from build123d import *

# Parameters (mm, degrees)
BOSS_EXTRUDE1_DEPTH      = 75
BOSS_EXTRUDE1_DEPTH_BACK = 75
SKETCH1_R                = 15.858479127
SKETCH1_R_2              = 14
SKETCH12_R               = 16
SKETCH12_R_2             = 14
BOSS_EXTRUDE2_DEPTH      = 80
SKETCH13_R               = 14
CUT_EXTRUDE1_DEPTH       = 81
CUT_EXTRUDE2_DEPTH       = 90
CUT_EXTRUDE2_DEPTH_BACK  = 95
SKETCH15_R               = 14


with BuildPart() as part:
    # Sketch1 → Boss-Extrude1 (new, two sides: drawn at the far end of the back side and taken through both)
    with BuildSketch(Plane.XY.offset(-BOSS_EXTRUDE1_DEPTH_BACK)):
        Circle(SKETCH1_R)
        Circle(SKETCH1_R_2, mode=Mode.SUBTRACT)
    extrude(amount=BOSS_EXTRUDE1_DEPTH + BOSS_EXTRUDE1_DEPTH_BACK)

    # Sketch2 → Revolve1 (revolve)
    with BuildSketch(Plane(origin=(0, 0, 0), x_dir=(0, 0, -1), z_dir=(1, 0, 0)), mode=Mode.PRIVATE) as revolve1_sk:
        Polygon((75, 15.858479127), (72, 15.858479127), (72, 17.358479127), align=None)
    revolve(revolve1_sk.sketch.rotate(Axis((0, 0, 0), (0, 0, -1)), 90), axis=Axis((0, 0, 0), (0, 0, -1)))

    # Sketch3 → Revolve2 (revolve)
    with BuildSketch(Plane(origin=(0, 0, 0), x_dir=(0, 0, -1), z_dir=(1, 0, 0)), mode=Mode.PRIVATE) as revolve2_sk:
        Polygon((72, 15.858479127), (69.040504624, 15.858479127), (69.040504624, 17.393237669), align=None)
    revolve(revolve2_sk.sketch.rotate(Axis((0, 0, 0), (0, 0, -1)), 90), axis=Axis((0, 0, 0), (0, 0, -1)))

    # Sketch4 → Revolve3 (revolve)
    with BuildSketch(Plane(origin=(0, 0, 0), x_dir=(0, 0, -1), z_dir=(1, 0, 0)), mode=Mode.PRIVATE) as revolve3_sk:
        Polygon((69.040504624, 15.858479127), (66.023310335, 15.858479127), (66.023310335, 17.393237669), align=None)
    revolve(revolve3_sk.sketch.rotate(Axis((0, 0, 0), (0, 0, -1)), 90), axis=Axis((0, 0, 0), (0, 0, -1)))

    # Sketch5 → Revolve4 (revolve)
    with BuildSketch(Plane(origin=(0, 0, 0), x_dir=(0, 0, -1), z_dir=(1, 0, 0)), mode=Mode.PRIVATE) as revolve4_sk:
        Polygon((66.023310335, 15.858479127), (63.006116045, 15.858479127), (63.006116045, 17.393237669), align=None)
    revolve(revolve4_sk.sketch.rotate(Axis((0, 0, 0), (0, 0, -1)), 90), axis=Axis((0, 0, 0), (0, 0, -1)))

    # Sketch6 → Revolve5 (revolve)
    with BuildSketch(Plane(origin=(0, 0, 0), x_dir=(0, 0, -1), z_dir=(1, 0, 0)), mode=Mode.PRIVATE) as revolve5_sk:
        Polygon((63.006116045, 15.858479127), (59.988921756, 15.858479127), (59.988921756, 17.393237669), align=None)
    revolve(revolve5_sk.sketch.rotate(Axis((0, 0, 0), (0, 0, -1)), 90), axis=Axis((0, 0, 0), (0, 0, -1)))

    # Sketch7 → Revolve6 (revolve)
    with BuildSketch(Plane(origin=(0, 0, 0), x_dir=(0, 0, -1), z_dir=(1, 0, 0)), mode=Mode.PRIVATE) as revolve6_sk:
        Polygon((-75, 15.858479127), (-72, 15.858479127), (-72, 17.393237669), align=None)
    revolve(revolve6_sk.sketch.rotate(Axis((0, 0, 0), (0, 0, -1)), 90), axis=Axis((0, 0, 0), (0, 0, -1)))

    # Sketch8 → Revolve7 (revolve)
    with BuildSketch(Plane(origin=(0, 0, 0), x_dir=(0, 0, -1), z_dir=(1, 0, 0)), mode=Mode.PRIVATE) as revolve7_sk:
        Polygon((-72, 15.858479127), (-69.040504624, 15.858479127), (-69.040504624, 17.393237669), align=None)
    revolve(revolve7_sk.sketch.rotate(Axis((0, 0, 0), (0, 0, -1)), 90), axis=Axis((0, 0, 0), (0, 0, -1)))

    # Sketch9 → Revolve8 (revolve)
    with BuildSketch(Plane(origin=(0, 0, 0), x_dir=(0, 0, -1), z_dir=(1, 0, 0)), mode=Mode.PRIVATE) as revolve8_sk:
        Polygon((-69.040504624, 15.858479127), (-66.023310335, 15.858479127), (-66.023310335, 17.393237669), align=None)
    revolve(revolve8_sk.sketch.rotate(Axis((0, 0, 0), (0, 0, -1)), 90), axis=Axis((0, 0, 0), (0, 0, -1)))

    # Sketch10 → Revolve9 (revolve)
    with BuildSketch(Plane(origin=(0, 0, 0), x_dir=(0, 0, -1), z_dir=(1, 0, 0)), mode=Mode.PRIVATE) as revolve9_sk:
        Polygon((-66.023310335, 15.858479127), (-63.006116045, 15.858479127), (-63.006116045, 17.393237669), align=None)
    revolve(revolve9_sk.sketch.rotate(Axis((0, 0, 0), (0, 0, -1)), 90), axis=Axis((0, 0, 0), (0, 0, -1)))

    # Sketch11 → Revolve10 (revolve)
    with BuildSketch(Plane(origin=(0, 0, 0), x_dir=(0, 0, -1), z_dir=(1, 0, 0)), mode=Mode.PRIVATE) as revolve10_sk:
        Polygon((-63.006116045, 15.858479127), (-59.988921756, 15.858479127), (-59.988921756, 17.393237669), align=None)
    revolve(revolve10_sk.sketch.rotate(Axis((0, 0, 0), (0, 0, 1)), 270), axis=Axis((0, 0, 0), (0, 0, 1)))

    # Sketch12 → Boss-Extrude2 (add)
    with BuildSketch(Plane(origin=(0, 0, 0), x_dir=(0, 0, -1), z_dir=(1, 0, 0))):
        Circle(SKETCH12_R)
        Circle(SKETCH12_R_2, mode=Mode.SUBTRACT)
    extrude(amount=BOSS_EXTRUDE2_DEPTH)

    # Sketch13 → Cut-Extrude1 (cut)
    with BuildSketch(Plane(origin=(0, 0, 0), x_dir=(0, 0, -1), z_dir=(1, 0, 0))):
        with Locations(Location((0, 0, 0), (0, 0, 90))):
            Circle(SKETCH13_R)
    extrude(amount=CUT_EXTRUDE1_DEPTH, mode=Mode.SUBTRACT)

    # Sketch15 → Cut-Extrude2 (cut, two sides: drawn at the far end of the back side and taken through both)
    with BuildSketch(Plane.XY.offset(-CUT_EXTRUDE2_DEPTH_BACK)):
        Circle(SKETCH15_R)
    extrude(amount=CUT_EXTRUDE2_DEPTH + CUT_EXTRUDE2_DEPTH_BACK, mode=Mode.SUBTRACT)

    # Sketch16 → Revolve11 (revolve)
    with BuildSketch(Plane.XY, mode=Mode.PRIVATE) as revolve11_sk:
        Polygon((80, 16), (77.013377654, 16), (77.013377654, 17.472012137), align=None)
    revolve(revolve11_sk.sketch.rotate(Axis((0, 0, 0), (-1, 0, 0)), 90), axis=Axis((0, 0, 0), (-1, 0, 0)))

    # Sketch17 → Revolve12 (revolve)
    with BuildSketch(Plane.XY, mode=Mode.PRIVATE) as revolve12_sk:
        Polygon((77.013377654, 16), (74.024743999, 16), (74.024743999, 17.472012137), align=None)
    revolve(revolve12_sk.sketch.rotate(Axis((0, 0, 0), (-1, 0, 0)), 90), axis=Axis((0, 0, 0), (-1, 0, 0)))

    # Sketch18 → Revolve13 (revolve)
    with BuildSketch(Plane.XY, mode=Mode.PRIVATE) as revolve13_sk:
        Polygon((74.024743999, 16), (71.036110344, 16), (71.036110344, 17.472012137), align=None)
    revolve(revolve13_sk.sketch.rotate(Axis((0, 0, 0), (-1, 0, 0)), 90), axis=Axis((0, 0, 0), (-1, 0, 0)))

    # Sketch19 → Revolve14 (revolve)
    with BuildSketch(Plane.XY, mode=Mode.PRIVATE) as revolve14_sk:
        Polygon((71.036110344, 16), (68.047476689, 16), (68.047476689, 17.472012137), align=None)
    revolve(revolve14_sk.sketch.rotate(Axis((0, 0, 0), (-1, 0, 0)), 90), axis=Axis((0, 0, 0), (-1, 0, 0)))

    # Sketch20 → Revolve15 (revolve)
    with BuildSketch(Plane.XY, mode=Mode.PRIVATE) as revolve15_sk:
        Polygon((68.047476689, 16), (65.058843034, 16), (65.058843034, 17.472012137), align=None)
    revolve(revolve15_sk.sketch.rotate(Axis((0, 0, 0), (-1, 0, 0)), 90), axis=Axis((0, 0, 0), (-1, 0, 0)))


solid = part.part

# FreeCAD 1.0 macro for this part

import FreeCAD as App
import Part
import Sketcher
Q = App.Units.Quantity


def add_polygon(sketch, points):
    """Adds a closed chain of lines whose ends are joined by coincident constraints."""
    first, n = sketch.GeometryCount, len(points)
    for a, b in zip(points, points[1:] + points[:1]):
        sketch.addGeometry(Part.LineSegment(App.Vector(*a, 0), App.Vector(*b, 0)), False)
    for i in range(n):
        sketch.addConstraint(Sketcher.Constraint("Coincident", first + i, 2, first + (i + 1) % n, 1))

doc = App.newDocument("Part")
body = doc.addObject("PartDesign::Body", "Body")

# Sketch on XY plane
sketch1 = body.newObject("Sketcher::SketchObject", "Sketch")
sketch1.AttachmentSupport = (doc.getObject("XY_Plane"), [""])
sketch1.MapMode = "FlatFace"
sketch1.addGeometry([
    Part.Circle(App.Vector(0, 0, 0), App.Vector(0, 0, 1), 16),
    Part.Circle(App.Vector(0, 0, 0), App.Vector(0, 0, 1), 14),
], False)
sketch1.addConstraint([
    Sketcher.Constraint("Coincident", 0, 3, -1, 1),
    Sketcher.Constraint("Coincident", 1, 3, -1, 1),
    Sketcher.Constraint("Diameter", 1, Q("28 mm")),
    Sketcher.Constraint("Diameter", 0, Q("31.716958 mm")),
])
pad1 = body.newObject("PartDesign::Pad", "Pad")
pad1.Profile = sketch1
pad1.Type = "TwoLengths"
pad1.Length = 75
pad1.Length2 = 75

# Sketch on YZ plane
sketch2 = body.newObject("Sketcher::SketchObject", "Sketch001")
sketch2.AttachmentSupport = (doc.getObject("YZ_Plane"), [""])
sketch2.MapMode = "FlatFace"
add_polygon(sketch2, [(15.9, -72), (15.9, -75), (17.4, -72)])  # lines 0-2
sketch2.addConstraint([
    Sketcher.Constraint("Vertical", 0),
    Sketcher.Constraint("Horizontal", 2),
    Sketcher.Constraint("DistanceY", 0, 2, 0, 1, Q("3 mm")),
    Sketcher.Constraint("DistanceX", 2, 2, 2, 1, Q("1.5 mm")),
    Sketcher.Constraint("DistanceY", 0, 2, -1, 1, Q("75 mm")),
    Sketcher.Constraint("DistanceX", -1, 1, 0, 2, Q("15.858479 mm")),
])
revolution = body.newObject("PartDesign::Revolution", "Revolution")
revolution.Profile = sketch2
revolution.ReferenceAxis = (sketch2, ["V_Axis"])
revolution.Angle = 360

# Sketch on YZ plane
sketch3 = body.newObject("Sketcher::SketchObject", "Sketch002")
sketch3.AttachmentSupport = (doc.getObject("YZ_Plane"), [""])
sketch3.MapMode = "FlatFace"
add_polygon(sketch3, [(15.9, -69), (15.9, -72), (17.4, -69)])  # lines 0-2
sketch3.addConstraint([
    Sketcher.Constraint("Vertical", 0),
    Sketcher.Constraint("Horizontal", 2),
    Sketcher.Constraint("DistanceY", 0, 2, -1, 1, Q("72 mm")),
    Sketcher.Constraint("DistanceX", 2, 2, 2, 1, Q("1.534759 mm")),
    Sketcher.Constraint("Distance", 1, Q("3.333781 mm")),
    Sketcher.Constraint("DistanceX", -1, 1, 0, 2, Q("15.858479 mm")),
])
revolution2 = body.newObject("PartDesign::Revolution", "Revolution001")
revolution2.Profile = sketch3
revolution2.ReferenceAxis = (sketch3, ["V_Axis"])
revolution2.Angle = 360

# Sketch on YZ plane
sketch4 = body.newObject("Sketcher::SketchObject", "Sketch003")
sketch4.AttachmentSupport = (doc.getObject("YZ_Plane"), [""])
sketch4.MapMode = "FlatFace"
add_polygon(sketch4, [(15.9, -66), (15.9, -69), (17.4, -66)])  # lines 0-2
sketch4.addConstraint([
    Sketcher.Constraint("Vertical", 0),
    Sketcher.Constraint("Horizontal", 2),
    Sketcher.Constraint("DistanceX", 2, 2, 2, 1, Q("1.534759 mm")),
    Sketcher.Constraint("DistanceY", 0, 2, 0, 1, Q("3.017194 mm")),
    Sketcher.Constraint("DistanceX", -1, 1, 0, 2, Q("15.858479 mm")),
    Sketcher.Constraint("DistanceY", 1, 2, -1, 1, Q("66.02331 mm")),
])
revolution3 = body.newObject("PartDesign::Revolution", "Revolution002")
revolution3.Profile = sketch4
revolution3.ReferenceAxis = (sketch4, ["V_Axis"])
revolution3.Angle = 360

# Sketch on YZ plane
sketch5 = body.newObject("Sketcher::SketchObject", "Sketch004")
sketch5.AttachmentSupport = (doc.getObject("YZ_Plane"), [""])
sketch5.MapMode = "FlatFace"
add_polygon(sketch5, [(15.9, -63), (15.9, -66), (17.4, -63)])  # lines 0-2
sketch5.addConstraint([
    Sketcher.Constraint("Vertical", 0),
    Sketcher.Constraint("Horizontal", 2),
    Sketcher.Constraint("DistanceX", 2, 2, 2, 1, Q("1.534759 mm")),
    Sketcher.Constraint("DistanceY", 0, 2, 0, 1, Q("3.017194 mm")),
    Sketcher.Constraint("DistanceX", -1, 1, 0, 2, Q("15.858479 mm")),
    Sketcher.Constraint("DistanceY", 0, 2, -1, 1, Q("66.02331 mm")),
])
revolution4 = body.newObject("PartDesign::Revolution", "Revolution003")
revolution4.Profile = sketch5
revolution4.ReferenceAxis = (sketch5, ["V_Axis"])
revolution4.Angle = 360

# Sketch on YZ plane
sketch6 = body.newObject("Sketcher::SketchObject", "Sketch005")
sketch6.AttachmentSupport = (doc.getObject("YZ_Plane"), [""])
sketch6.MapMode = "FlatFace"
add_polygon(sketch6, [(15.9, -60), (15.9, -63), (17.4, -60)])  # lines 0-2
sketch6.addConstraint([
    Sketcher.Constraint("Vertical", 0),
    Sketcher.Constraint("Horizontal", 2),
    Sketcher.Constraint("DistanceX", 2, 2, 2, 1, Q("1.534759 mm")),
    Sketcher.Constraint("DistanceY", 0, 2, 0, 1, Q("3.017194 mm")),
    Sketcher.Constraint("DistanceX", -1, 1, 0, 2, Q("15.858479 mm")),
    Sketcher.Constraint("DistanceY", 1, 2, -1, 1, Q("59.988922 mm")),
])
revolution5 = body.newObject("PartDesign::Revolution", "Revolution004")
revolution5.Profile = sketch6
revolution5.ReferenceAxis = (sketch6, ["V_Axis"])
revolution5.Angle = 360

# Sketch on YZ plane
sketch7 = body.newObject("Sketcher::SketchObject", "Sketch006")
sketch7.AttachmentSupport = (doc.getObject("YZ_Plane"), [""])
sketch7.MapMode = "FlatFace"
add_polygon(sketch7, [(15.9, 75), (15.9, 72), (17.4, 72)])  # lines 0-2
sketch7.addConstraint([
    Sketcher.Constraint("Vertical", 0),
    Sketcher.Constraint("Horizontal", 1),
    Sketcher.Constraint("DistanceY", 0, 2, 0, 1, Q("3 mm")),
    Sketcher.Constraint("DistanceY", -1, 1, 0, 2, Q("72 mm")),
    Sketcher.Constraint("DistanceX", 1, 1, 1, 2, Q("1.534759 mm")),
    Sketcher.Constraint("DistanceX", -1, 1, 0, 2, Q("15.858479 mm")),
])
revolution6 = body.newObject("PartDesign::Revolution", "Revolution005")
revolution6.Profile = sketch7
revolution6.ReferenceAxis = (sketch7, ["V_Axis"])
revolution6.Angle = 360

# Sketch on YZ plane
sketch8 = body.newObject("Sketcher::SketchObject", "Sketch007")
sketch8.AttachmentSupport = (doc.getObject("YZ_Plane"), [""])
sketch8.MapMode = "FlatFace"
add_polygon(sketch8, [(15.9, 72), (15.9, 69), (17.4, 69)])  # lines 0-2
sketch8.addConstraint([
    Sketcher.Constraint("Vertical", 0),
    Sketcher.Constraint("Horizontal", 1),
    Sketcher.Constraint("DistanceY", -1, 1, 2, 2, Q("72 mm")),
    Sketcher.Constraint("DistanceX", 1, 1, 1, 2, Q("1.534759 mm")),
    Sketcher.Constraint("Distance", 2, Q("3.333781 mm")),
    Sketcher.Constraint("DistanceX", -1, 1, 0, 2, Q("15.858479 mm")),
])
revolution7 = body.newObject("PartDesign::Revolution", "Revolution006")
revolution7.Profile = sketch8
revolution7.ReferenceAxis = (sketch8, ["V_Axis"])
revolution7.Angle = 360

# Sketch on YZ plane
sketch9 = body.newObject("Sketcher::SketchObject", "Sketch008")
sketch9.AttachmentSupport = (doc.getObject("YZ_Plane"), [""])
sketch9.MapMode = "FlatFace"
add_polygon(sketch9, [(15.9, 69), (15.9, 66), (17.4, 66)])  # lines 0-2
sketch9.addConstraint([
    Sketcher.Constraint("Vertical", 0),
    Sketcher.Constraint("Horizontal", 1),
    Sketcher.Constraint("DistanceX", 1, 1, 1, 2, Q("1.534759 mm")),
    Sketcher.Constraint("DistanceY", 0, 2, 0, 1, Q("3.017194 mm")),
    Sketcher.Constraint("DistanceX", -1, 1, 0, 2, Q("15.858479 mm")),
    Sketcher.Constraint("DistanceY", -1, 1, 0, 2, Q("66.02331 mm")),
])
revolution8 = body.newObject("PartDesign::Revolution", "Revolution007")
revolution8.Profile = sketch9
revolution8.ReferenceAxis = (sketch9, ["V_Axis"])
revolution8.Angle = 360

# Sketch on YZ plane
sketch10 = body.newObject("Sketcher::SketchObject", "Sketch009")
sketch10.AttachmentSupport = (doc.getObject("YZ_Plane"), [""])
sketch10.MapMode = "FlatFace"
add_polygon(sketch10, [(15.9, 66), (15.9, 63), (17.4, 63)])  # lines 0-2
sketch10.addConstraint([
    Sketcher.Constraint("Vertical", 0),
    Sketcher.Constraint("Horizontal", 1),
    Sketcher.Constraint("DistanceX", 1, 1, 1, 2, Q("1.534759 mm")),
    Sketcher.Constraint("DistanceY", 0, 2, 0, 1, Q("3.017194 mm")),
    Sketcher.Constraint("DistanceX", -1, 1, 0, 2, Q("15.858479 mm")),
    Sketcher.Constraint("DistanceY", -1, 1, 2, 2, Q("66.02331 mm")),
])
revolution9 = body.newObject("PartDesign::Revolution", "Revolution008")
revolution9.Profile = sketch10
revolution9.ReferenceAxis = (sketch10, ["V_Axis"])
revolution9.Angle = 360

# Sketch on YZ plane
sketch11 = body.newObject("Sketcher::SketchObject", "Sketch010")
sketch11.AttachmentSupport = (doc.getObject("YZ_Plane"), [""])
sketch11.MapMode = "FlatFace"
add_polygon(sketch11, [(15.9, 63), (15.9, 60), (17.4, 60)])  # lines 0-2
sketch11.addConstraint([
    Sketcher.Constraint("Vertical", 0),
    Sketcher.Constraint("Horizontal", 1),
    Sketcher.Constraint("DistanceX", 1, 1, 1, 2, Q("1.534759 mm")),
    Sketcher.Constraint("DistanceY", 0, 2, 0, 1, Q("3.017194 mm")),
    Sketcher.Constraint("DistanceX", -1, 1, 0, 2, Q("15.858479 mm")),
    Sketcher.Constraint("DistanceY", -1, 1, 0, 2, Q("59.988922 mm")),
])
revolution10 = body.newObject("PartDesign::Revolution", "Revolution009")
revolution10.Profile = sketch11
revolution10.ReferenceAxis = (sketch11, ["V_Axis"])
revolution10.Angle = 360

# Sketch on YZ plane
sketch12 = body.newObject("Sketcher::SketchObject", "Sketch011")
sketch12.AttachmentSupport = (doc.getObject("YZ_Plane"), [""])
sketch12.MapMode = "FlatFace"
sketch12.addGeometry([
    Part.Circle(App.Vector(0, 0, 0), App.Vector(0, 0, 1), 16),
    Part.Circle(App.Vector(0, 0, 0), App.Vector(0, 0, 1), 14),
], False)
sketch12.addConstraint([
    Sketcher.Constraint("Coincident", 0, 3, -1, 1),
    Sketcher.Constraint("Coincident", 1, 3, -1, 1),
    Sketcher.Constraint("Diameter", 0, Q("32 mm")),
    Sketcher.Constraint("Diameter", 1, Q("28 mm")),
])
pad2 = body.newObject("PartDesign::Pad", "Pad001")
pad2.Profile = sketch12
pad2.Length = 80

# Sketch on YZ plane
sketch13 = body.newObject("Sketcher::SketchObject", "Sketch012")
sketch13.AttachmentSupport = (doc.getObject("YZ_Plane"), [""])
sketch13.MapMode = "FlatFace"
sketch13.addGeometry(Part.Circle(App.Vector(0, 0, 0), App.Vector(0, 0, 1), 14), False)
sketch13.addConstraint([
    Sketcher.Constraint("Coincident", 0, 3, -1, 1),
    Sketcher.Constraint("Diameter", 0, Q("28 mm")),
])
pocket1 = body.newObject("PartDesign::Pocket", "Pocket")
pocket1.Profile = sketch13
pocket1.Length = 81
pocket1.Reversed = True

# Sketch on XY plane
sketch14 = body.newObject("Sketcher::SketchObject", "Sketch013")
sketch14.AttachmentSupport = (doc.getObject("XY_Plane"), [""])
sketch14.MapMode = "FlatFace"
sketch14.addGeometry(Part.Circle(App.Vector(0, 0, 0), App.Vector(0, 0, 1), 14), False)
sketch14.addConstraint([
    Sketcher.Constraint("Coincident", 0, 3, -1, 1),
    Sketcher.Constraint("Diameter", 0, Q("28 mm")),
])
pocket2 = body.newObject("PartDesign::Pocket", "Pocket001")
pocket2.Profile = sketch14
pocket2.Type = "ThroughAll"
pocket2.Midplane = True

# Sketch on XY plane
sketch15 = body.newObject("Sketcher::SketchObject", "Sketch014")
sketch15.AttachmentSupport = (doc.getObject("XY_Plane"), [""])
sketch15.MapMode = "FlatFace"
add_polygon(sketch15, [(77, 16), (80, 16), (77, 17.5)])  # lines 0-2
sketch15.addConstraint([
    Sketcher.Constraint("Horizontal", 0),
    Sketcher.Constraint("Vertical", 2),
    Sketcher.Constraint("DistanceX", -1, 1, 0, 2, Q("80 mm")),
    Sketcher.Constraint("DistanceY", -1, 1, 0, 2, Q("16 mm")),
    Sketcher.Constraint("DistanceX", 0, 1, 0, 2, Q("2.986622 mm")),
    Sketcher.Constraint("DistanceY", 2, 2, 2, 1, Q("1.472012 mm")),
])
revolution11 = body.newObject("PartDesign::Revolution", "Revolution010")
revolution11.Profile = sketch15
revolution11.ReferenceAxis = (sketch15, ["H_Axis"])
revolution11.Angle = 360

# Sketch on XY plane
sketch16 = body.newObject("Sketcher::SketchObject", "Sketch015")
sketch16.AttachmentSupport = (doc.getObject("XY_Plane"), [""])
sketch16.MapMode = "FlatFace"
add_polygon(sketch16, [(74, 16), (77, 16), (74, 17.5)])  # lines 0-2
sketch16.addConstraint([
    Sketcher.Constraint("Horizontal", 0),
    Sketcher.Constraint("Vertical", 2),
    Sketcher.Constraint("DistanceY", -1, 1, 0, 2, Q("16 mm")),
    Sketcher.Constraint("Distance", 1, Q("3.331479 mm")),
    Sketcher.Constraint("DistanceX", 0, 1, 0, 2, Q("2.988634 mm")),
    Sketcher.Constraint("DistanceX", -1, 1, 0, 2, Q("77.013378 mm")),
])
revolution12 = body.newObject("PartDesign::Revolution", "Revolution011")
revolution12.Profile = sketch16
revolution12.ReferenceAxis = (sketch16, ["H_Axis"])
revolution12.Angle = 360

# Sketch on XY plane
sketch17 = body.newObject("Sketcher::SketchObject", "Sketch016")
sketch17.AttachmentSupport = (doc.getObject("XY_Plane"), [""])
sketch17.MapMode = "FlatFace"
add_polygon(sketch17, [(71, 16), (74, 16), (71, 17.5)])  # lines 0-2
sketch17.addConstraint([
    Sketcher.Constraint("Horizontal", 0),
    Sketcher.Constraint("Vertical", 2),
    Sketcher.Constraint("DistanceY", -1, 1, 0, 2, Q("16 mm")),
    Sketcher.Constraint("Distance", 1, Q("3.331479 mm")),
    Sketcher.Constraint("DistanceX", 0, 1, 0, 2, Q("2.988634 mm")),
    Sketcher.Constraint("DistanceX", -1, 1, 1, 2, Q("71.03611 mm")),
])
revolution13 = body.newObject("PartDesign::Revolution", "Revolution012")
revolution13.Profile = sketch17
revolution13.ReferenceAxis = (sketch17, ["H_Axis"])
revolution13.Angle = 360

# Sketch on XY plane
sketch18 = body.newObject("Sketcher::SketchObject", "Sketch017")
sketch18.AttachmentSupport = (doc.getObject("XY_Plane"), [""])
sketch18.MapMode = "FlatFace"
add_polygon(sketch18, [(68, 16), (71, 16), (68, 17.5)])  # lines 0-2
sketch18.addConstraint([
    Sketcher.Constraint("Horizontal", 0),
    Sketcher.Constraint("Vertical", 2),
    Sketcher.Constraint("DistanceY", -1, 1, 0, 2, Q("16 mm")),
    Sketcher.Constraint("Distance", 1, Q("3.331479 mm")),
    Sketcher.Constraint("DistanceX", 0, 1, 0, 2, Q("2.988634 mm")),
    Sketcher.Constraint("DistanceX", -1, 1, 0, 2, Q("71.03611 mm")),
])
revolution14 = body.newObject("PartDesign::Revolution", "Revolution013")
revolution14.Profile = sketch18
revolution14.ReferenceAxis = (sketch18, ["H_Axis"])
revolution14.Angle = 360

# Sketch on XY plane
sketch19 = body.newObject("Sketcher::SketchObject", "Sketch018")
sketch19.AttachmentSupport = (doc.getObject("XY_Plane"), [""])
sketch19.MapMode = "FlatFace"
add_polygon(sketch19, [(65.1, 16), (68, 16), (65.1, 17.5)])  # lines 0-2
sketch19.addConstraint([
    Sketcher.Constraint("Horizontal", 0),
    Sketcher.Constraint("Vertical", 2),
    Sketcher.Constraint("DistanceY", -1, 1, 0, 2, Q("16 mm")),
    Sketcher.Constraint("Distance", 1, Q("3.331479 mm")),
    Sketcher.Constraint("DistanceX", 0, 1, 0, 2, Q("2.988634 mm")),
    Sketcher.Constraint("DistanceX", -1, 1, 0, 2, Q("68.047477 mm")),
])
revolution15 = body.newObject("PartDesign::Revolution", "Revolution014")
revolution15.Profile = sketch19
revolution15.ReferenceAxis = (sketch19, ["H_Axis"])
revolution15.Angle = 360

doc.recompute()
